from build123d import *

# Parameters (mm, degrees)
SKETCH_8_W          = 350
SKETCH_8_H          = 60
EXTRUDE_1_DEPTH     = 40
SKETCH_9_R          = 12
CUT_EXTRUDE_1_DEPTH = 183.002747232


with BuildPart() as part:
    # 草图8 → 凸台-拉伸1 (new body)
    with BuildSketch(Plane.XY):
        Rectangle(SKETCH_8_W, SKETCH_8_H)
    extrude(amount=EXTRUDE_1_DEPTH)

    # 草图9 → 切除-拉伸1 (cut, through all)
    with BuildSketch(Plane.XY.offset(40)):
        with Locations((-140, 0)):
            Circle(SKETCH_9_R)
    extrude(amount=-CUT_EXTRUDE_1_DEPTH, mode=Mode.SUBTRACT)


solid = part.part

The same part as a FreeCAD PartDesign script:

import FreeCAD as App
import Part
import Sketcher
from FreeCAD import Vector


def add_polygon(sketch, points):
    """Adds a closed chain of lines whose ends are joined by coincident constraints."""
    first, n = sketch.GeometryCount, len(points)
    for a, b in zip(points, points[1:] + points[:1]):
        sketch.addGeometry(Part.LineSegment(App.Vector(*a, 0), App.Vector(*b, 0)), False)
    for i in range(n):
        sketch.addConstraint(Sketcher.Constraint("Coincident", first + i, 2, first + (i + 1) % n, 1))

doc = App.newDocument("Part")
body = doc.addObject("PartDesign::Body", "Body")

sketch1 = doc.addObject("Sketcher::SketchObject", "Sketch")
body.addObject(sketch1)
sketch1.AttachmentSupport = (doc.XY_Plane, [""])
sketch1.MapMode = "FlatFace"
add_polygon(sketch1, [(-175, 30), (-175, -30), (175, -30), (175, 30)])
sketch1.addConstraint([
    Sketcher.Constraint("Vertical", 0),
    Sketcher.Constraint("Horizontal", 1),
    Sketcher.Constraint("Vertical", 2),
    Sketcher.Constraint("Horizontal", 3),
    Sketcher.Constraint("Symmetric", 0, 2, 2, 2, -1, 1),
    Sketcher.Constraint("DistanceX", 1, 1, 1, 2, 350.0),
    Sketcher.Constraint("DistanceY", 0, 2, 0, 1, 60.0),
])
pad1 = doc.addObject("PartDesign::Pad", "Pad")
body.addObject(pad1)
pad1.Profile = sketch1
pad1.Length = 40

sketch2 = doc.addObject("Sketcher::SketchObject", "Sketch001")
body.addObject(sketch2)
sketch2.AttachmentSupport = (doc.XY_Plane, [""])
sketch2.MapMode = "FlatFace"
sketch2.AttachmentOffset = App.Placement(Vector(0, 0, 40), App.Rotation())
sketch2.addGeometry(Part.Circle(Vector(-140, 0, 0), Vector(0, 0, 1), 12), False)
sketch2.addConstraint([
    Sketcher.Constraint("PointOnObject", 0, 3, -1),
    Sketcher.Constraint("Diameter", 0, 24.0),
    Sketcher.Constraint("DistanceX", 0, 3, -1, 1, 140.0),
])
pocket1 = doc.addObject("PartDesign::Pocket", "Pocket")
body.addObject(pocket1)
pocket1.Profile = sketch2
pocket1.Type = "ThroughAll"

doc.recompute()
